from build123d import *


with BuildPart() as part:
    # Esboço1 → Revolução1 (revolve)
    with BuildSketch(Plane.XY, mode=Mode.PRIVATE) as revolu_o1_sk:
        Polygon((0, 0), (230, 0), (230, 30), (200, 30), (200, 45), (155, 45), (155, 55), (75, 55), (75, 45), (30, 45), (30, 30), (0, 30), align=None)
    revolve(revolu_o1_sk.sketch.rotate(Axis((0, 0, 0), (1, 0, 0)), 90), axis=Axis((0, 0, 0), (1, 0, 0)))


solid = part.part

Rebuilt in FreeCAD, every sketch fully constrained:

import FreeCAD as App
import Part
import Sketcher
from FreeCAD import Vector

doc = App.newDocument("Part")
body = doc.addObject("PartDesign::Body", "Body")

# Sketch on XY plane
sketch1 = doc.addObject("Sketcher::SketchObject", "Sketch")
body.addObject(sketch1)
sketch1.AttachmentSupport = (doc.XY_Plane, [""])
sketch1.MapMode = "FlatFace"
sketch1.addGeometry([
    Part.LineSegment(Vector(0, 0, 0), Vector(230, 0, 0)),  # 0
    Part.LineSegment(Vector(230, 0, 0), Vector(230, 30, 0)),  # 1
    Part.LineSegment(Vector(230, 30, 0), Vector(200, 30, 0)),  # 2
    Part.LineSegment(Vector(200, 30, 0), Vector(200, 45, 0)),  # 3
    Part.LineSegment(Vector(200, 45, 0), Vector(155, 45, 0)),  # 4
    Part.LineSegment(Vector(155, 45, 0), Vector(155, 55, 0)),  # 5
    Part.LineSegment(Vector(155, 55, 0), Vector(75, 55, 0)),  # 6
    Part.LineSegment(Vector(75, 55, 0), Vector(75, 45, 0)),  # 7
    Part.LineSegment(Vector(75, 45, 0), Vector(30, 45, 0)),  # 8
    Part.LineSegment(Vector(30, 45, 0), Vector(30, 30, 0)),  # 9
    Part.LineSegment(Vector(30, 30, 0), Vector(0, 30, 0)),  # 10
    Part.LineSegment(Vector(0, 30, 0), Vector(0, 0, 0)),  # 11
], False)
sketch1.addConstraint([
    Sketcher.Constraint("Coincident", 0, 2, 1, 1),
    Sketcher.Constraint("Coincident", 1, 2, 2, 1),
    Sketcher.Constraint("Coincident", 2, 2, 3, 1),
    Sketcher.Constraint("Coincident", 3, 2, 4, 1),
    Sketcher.Constraint("Coincident", 4, 2, 5, 1),
    Sketcher.Constraint("Coincident", 5, 2, 6, 1),
    Sketcher.Constraint("Coincident", 6, 2, 7, 1),
    Sketcher.Constraint("Coincident", 7, 2, 8, 1),
    Sketcher.Constraint("Coincident", 8, 2, 9, 1),
    Sketcher.Constraint("Coincident", 9, 2, 10, 1),
    Sketcher.Constraint("Coincident", 10, 2, 11, 1),
    Sketcher.Constraint("Coincident", 11, 2, 0, 1),
    Sketcher.Constraint("Horizontal", 0),
    Sketcher.Constraint("Vertical", 1),
    Sketcher.Constraint("Horizontal", 2),
    Sketcher.Constraint("Vertical", 3),
    Sketcher.Constraint("Horizontal", 4),
    Sketcher.Constraint("Vertical", 5),
    Sketcher.Constraint("Horizontal", 6),
    Sketcher.Constraint("Vertical", 7),
    Sketcher.Constraint("Horizontal", 8),
    Sketcher.Constraint("Vertical", 9),
    Sketcher.Constraint("Horizontal", 10),
    Sketcher.Constraint("Vertical", 11),
    Sketcher.Constraint("Coincident", 11, 2, -1, 1),
    Sketcher.Constraint("Horizontal", 4, 2, 7, 2),
    Sketcher.Constraint("Horizontal", 2, 2, 9, 2),
    Sketcher.Constraint("Equal", 4, 8),
    Sketcher.Constraint("Equal", 2, 10),
    Sketcher.Constraint("Equal", 10, 1),
    Sketcher.Constraint("DistanceX", 0, 1, 0, 2, 230.0),
    Sketcher.Constraint("DistanceX", 2, 2, 2, 1, 30.0),
    Sketcher.Constraint("DistanceX", 4, 2, 4, 1, 45.0),
    Sketcher.Constraint("DistanceY", 3, 1, 3, 2, 15.0),
    Sketcher.Constraint("DistanceY", 5, 1, 5, 2, 10.0),
])
revolution = doc.addObject("PartDesign::Revolution", "Revolution")
body.addObject(revolution)
revolution.Profile = sketch1
revolution.ReferenceAxis = (sketch1, ["H_Axis"])
revolution.Angle = 360

doc.recompute()
